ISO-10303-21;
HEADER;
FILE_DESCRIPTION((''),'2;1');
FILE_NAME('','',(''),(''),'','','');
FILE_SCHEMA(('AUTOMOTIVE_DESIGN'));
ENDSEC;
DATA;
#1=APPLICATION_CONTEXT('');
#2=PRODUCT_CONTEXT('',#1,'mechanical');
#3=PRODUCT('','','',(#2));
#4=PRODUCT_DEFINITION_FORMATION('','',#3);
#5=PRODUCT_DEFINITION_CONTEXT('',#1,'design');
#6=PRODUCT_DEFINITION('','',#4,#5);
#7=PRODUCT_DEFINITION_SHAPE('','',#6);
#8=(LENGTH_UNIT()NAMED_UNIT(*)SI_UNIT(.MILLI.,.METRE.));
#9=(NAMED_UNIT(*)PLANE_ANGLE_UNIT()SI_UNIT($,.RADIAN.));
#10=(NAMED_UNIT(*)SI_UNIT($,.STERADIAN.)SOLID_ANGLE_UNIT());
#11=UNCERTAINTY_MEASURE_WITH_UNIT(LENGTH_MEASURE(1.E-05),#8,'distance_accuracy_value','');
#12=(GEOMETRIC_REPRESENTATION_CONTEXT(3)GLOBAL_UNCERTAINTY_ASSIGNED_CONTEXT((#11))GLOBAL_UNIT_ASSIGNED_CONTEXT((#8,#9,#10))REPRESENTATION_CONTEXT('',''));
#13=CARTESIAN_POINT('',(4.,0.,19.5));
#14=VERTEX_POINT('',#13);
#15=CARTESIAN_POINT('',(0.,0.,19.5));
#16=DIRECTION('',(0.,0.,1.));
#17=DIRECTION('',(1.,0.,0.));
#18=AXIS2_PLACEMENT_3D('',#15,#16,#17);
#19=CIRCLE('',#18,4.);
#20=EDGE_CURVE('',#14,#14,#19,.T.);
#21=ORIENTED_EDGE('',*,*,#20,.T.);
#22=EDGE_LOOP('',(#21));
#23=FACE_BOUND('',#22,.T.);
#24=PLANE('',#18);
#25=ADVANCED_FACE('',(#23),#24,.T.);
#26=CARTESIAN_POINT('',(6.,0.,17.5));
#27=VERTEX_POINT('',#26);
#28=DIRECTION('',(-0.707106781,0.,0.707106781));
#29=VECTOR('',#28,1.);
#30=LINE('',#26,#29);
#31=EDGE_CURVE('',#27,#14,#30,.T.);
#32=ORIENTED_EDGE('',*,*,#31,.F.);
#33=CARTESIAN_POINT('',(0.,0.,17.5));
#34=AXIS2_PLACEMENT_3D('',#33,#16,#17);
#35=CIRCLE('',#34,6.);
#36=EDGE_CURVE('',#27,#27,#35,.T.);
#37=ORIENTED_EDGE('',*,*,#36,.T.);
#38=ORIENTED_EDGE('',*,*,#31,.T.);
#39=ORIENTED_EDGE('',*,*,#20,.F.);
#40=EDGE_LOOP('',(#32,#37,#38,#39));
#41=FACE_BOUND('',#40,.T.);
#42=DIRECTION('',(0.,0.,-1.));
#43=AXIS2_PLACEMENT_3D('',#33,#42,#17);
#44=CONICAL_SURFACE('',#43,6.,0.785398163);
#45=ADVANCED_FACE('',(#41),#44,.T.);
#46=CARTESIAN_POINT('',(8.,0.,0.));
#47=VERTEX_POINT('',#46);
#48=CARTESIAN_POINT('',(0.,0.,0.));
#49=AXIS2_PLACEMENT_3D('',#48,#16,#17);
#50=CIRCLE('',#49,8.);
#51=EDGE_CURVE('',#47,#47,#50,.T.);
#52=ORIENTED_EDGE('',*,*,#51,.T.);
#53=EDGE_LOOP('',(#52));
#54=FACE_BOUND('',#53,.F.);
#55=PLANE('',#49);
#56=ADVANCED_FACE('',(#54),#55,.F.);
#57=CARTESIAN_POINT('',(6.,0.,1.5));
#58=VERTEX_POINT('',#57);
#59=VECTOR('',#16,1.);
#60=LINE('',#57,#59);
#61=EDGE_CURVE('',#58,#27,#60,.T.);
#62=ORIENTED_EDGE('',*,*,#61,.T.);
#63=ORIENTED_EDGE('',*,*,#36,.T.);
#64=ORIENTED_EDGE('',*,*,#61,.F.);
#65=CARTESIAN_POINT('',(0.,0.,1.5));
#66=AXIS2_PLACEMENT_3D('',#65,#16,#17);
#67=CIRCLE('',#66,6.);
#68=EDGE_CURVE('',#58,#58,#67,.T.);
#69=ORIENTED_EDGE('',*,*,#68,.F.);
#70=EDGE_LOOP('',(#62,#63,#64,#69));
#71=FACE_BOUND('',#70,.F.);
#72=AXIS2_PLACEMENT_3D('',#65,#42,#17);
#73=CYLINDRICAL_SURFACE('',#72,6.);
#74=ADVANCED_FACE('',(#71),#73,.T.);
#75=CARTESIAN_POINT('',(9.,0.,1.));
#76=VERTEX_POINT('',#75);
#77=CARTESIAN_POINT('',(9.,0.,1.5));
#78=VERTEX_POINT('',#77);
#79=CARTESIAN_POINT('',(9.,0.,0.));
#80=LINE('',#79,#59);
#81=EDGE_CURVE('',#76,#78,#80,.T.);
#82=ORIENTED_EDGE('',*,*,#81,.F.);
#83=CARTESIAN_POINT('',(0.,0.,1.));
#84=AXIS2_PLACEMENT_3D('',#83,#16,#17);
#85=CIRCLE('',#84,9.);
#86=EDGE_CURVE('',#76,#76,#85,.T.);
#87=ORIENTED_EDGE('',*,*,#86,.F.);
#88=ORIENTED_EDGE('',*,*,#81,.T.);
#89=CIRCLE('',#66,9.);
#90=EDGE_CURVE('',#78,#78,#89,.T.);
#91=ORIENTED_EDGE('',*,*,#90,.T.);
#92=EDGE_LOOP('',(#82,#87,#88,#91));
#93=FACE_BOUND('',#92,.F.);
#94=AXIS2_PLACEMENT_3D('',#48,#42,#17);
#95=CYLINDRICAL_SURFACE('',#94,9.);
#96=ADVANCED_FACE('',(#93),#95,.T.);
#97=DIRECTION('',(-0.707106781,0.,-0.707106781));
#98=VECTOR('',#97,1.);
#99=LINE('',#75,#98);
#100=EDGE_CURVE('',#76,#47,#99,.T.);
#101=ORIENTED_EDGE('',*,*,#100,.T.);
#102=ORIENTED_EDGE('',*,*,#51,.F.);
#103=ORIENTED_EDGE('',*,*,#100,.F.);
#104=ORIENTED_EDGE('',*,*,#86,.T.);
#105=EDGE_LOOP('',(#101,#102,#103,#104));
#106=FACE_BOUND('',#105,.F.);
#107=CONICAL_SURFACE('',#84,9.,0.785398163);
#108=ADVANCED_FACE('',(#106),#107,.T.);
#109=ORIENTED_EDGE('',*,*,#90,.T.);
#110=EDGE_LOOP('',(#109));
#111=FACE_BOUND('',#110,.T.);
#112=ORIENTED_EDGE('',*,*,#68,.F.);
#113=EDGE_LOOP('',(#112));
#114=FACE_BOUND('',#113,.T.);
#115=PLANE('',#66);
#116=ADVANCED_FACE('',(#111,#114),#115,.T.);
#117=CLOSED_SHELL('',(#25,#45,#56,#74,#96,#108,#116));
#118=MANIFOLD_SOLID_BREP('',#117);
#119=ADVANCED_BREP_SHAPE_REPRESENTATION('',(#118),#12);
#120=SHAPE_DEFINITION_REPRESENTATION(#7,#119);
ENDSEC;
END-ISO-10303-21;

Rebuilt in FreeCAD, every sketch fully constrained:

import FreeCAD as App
import Part
import Sketcher
from FreeCAD import Vector
Q = App.Units.Quantity


def edges_at(feature, points):
    """Names of the edges that pass closest to the given points."""
    edges = feature.Shape.Edges
    near = lambda p: min(range(len(edges)), key=lambda i: edges[i].distToShape(Part.Vertex(*p))[0])
    return sorted({f"Edge{near(p) + 1}" for p in points})

doc = App.newDocument("Part")
body = doc.addObject("PartDesign::Body", "Body")

# Sketch on XY plane
sketch1 = doc.addObject("Sketcher::SketchObject", "Sketch")
body.addObject(sketch1)
sketch1.AttachmentSupport = (doc.XY_Plane, [""])
sketch1.MapMode = "FlatFace"
sketch1.addGeometry(Part.Circle(Vector(0, 0, 0), Vector(0, 0, 1), 9), False)
sketch1.addConstraint(Sketcher.Constraint("Coincident", 0, 3, -1, 1))
sketch1.addConstraint(Sketcher.Constraint("Diameter", 0, Q("18 mm")))
pad1 = doc.addObject("PartDesign::Pad", "Pad")
body.addObject(pad1)
pad1.Profile = sketch1
pad1.Length = 1.5

# Sketch on XY plane
sketch2 = doc.addObject("Sketcher::SketchObject", "Sketch001")
body.addObject(sketch2)
sketch2.AttachmentSupport = (doc.XY_Plane, [""])
sketch2.MapMode = "FlatFace"
sketch2.AttachmentOffset = App.Placement(Vector(0, 0, 1.5), App.Rotation())
sketch2.addGeometry(Part.Circle(Vector(0, 0, 0), Vector(0, 0, 1), 6), False)
sketch2.addConstraint(Sketcher.Constraint("Coincident", 0, 3, -1, 1))
sketch2.addConstraint(Sketcher.Constraint("Diameter", 0, Q("12 mm")))
pad2 = doc.addObject("PartDesign::Pad", "Pad001")
body.addObject(pad2)
pad2.Profile = sketch2
pad2.Length = 18
doc.recompute()

chamfer = doc.addObject("PartDesign::Chamfer", "Chamfer")
body.addObject(chamfer)
chamfer.Base = (pad2, edges_at(pad2, [(-9, 0, 0)]))
chamfer.Size = 1
doc.recompute()

chamfer2 = doc.addObject("PartDesign::Chamfer", "Chamfer001")
body.addObject(chamfer2)
chamfer2.Base = (chamfer, edges_at(chamfer, [(-6, 0, 19.5)]))
chamfer2.Size = 2

doc.recompute()
